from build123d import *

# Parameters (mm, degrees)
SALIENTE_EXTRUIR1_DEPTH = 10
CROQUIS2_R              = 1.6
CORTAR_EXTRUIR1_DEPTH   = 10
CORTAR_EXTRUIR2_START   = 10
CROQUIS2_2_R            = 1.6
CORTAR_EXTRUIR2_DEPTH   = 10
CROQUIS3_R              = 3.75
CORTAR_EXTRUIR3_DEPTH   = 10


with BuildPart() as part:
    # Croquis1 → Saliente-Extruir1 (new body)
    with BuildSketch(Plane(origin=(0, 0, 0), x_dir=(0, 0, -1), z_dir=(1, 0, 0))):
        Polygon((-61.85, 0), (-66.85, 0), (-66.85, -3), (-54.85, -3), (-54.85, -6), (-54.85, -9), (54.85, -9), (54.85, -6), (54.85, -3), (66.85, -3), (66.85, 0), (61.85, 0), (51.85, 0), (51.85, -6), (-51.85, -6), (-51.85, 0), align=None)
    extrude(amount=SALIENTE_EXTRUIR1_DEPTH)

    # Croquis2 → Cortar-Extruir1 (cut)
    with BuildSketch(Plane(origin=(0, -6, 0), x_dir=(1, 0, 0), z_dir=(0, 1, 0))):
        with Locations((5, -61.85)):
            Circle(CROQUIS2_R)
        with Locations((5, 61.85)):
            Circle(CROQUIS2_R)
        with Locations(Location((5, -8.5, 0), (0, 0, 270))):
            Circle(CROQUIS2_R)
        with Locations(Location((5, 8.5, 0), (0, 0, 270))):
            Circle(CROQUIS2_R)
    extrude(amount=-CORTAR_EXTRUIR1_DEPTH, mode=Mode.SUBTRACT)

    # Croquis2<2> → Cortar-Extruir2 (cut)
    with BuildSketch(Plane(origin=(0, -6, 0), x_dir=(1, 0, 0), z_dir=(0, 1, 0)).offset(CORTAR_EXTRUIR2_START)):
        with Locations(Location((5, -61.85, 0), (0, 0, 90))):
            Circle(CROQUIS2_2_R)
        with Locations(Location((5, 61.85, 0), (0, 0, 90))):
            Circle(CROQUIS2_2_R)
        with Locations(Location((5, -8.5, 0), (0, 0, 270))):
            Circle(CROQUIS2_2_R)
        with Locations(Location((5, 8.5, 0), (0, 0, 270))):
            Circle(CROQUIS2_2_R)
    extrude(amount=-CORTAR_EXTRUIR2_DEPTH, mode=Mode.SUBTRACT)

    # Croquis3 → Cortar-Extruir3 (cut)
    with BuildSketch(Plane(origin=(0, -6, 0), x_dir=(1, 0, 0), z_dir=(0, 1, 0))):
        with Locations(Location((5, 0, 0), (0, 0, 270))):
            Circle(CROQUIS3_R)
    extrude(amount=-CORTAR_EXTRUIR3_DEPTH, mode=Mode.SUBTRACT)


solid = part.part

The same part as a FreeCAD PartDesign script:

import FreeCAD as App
import Part
import Sketcher
from FreeCAD import Vector
Q = App.Units.Quantity


def add_polygon(sketch, points):
    """Adds a closed chain of lines whose ends are joined by coincident constraints."""
    first, n = sketch.GeometryCount, len(points)
    for a, b in zip(points, points[1:] + points[:1]):
        sketch.addGeometry(Part.LineSegment(App.Vector(*a, 0), App.Vector(*b, 0)), False)
    for i in range(n):
        sketch.addConstraint(Sketcher.Constraint("Coincident", first + i, 2, first + (i + 1) % n, 1))

doc = App.newDocument("Part")
body = doc.addObject("PartDesign::Body", "Body")

# Sketch on YZ plane
sketch1 = body.newObject("Sketcher::SketchObject", "Sketch")
sketch1.AttachmentSupport = (doc.getObject("YZ_Plane"), [""])
sketch1.MapMode = "FlatFace"
add_polygon(sketch1, [(0, 66.8), (-3, 66.8), (-3, 54.9), (-9, 54.9), (-9, -54.9), (-3, -54.9), (-3, -66.8), (0, -66.8), (0, -51.9), (-6, -51.9), (-6, 51.9), (0, 51.9)])  # lines 0-11
sketch1.addConstraint([
    Sketcher.Constraint("Horizontal", 0),
    Sketcher.Constraint("Vertical", 1),
    Sketcher.Constraint("Horizontal", 2),
    Sketcher.Constraint("Vertical", 3),
    Sketcher.Constraint("Horizontal", 4),
    Sketcher.Constraint("Vertical", 5),
    Sketcher.Constraint("Horizontal", 6),
    Sketcher.Constraint("Vertical", 7),
    Sketcher.Constraint("Horizontal", 8),
    Sketcher.Constraint("Vertical", 9),
    Sketcher.Constraint("Horizontal", 10),
    Sketcher.Constraint("Vertical", 11),
    Sketcher.Constraint("Symmetric", 7, 2, 10, 2, -1, 1),
    Sketcher.Constraint("Symmetric", 1, 2, 4, 2, -1),
    Sketcher.Constraint("Symmetric", 6, 2, 11, 2, -1),
    Sketcher.Constraint("Equal", 4, 8),
    Sketcher.Constraint("DistanceX", 0, 2, 0, 1, Q("3 mm")),
    Sketcher.Constraint("DistanceX", 2, 2, 2, 1, Q("6 mm")),
    Sketcher.Constraint("DistanceY", 1, 2, 1, 1, Q("12 mm")),
    Sketcher.Constraint("DistanceY", 7, 1, 7, 2, Q("15 mm")),
    Sketcher.Constraint("DistanceY", 3, 2, 3, 1, Q("109.7 mm")),
])
pad1 = body.newObject("PartDesign::Pad", "Pad")
pad1.Profile = sketch1
pad1.Length = 10

# Sketch on XZ plane
sketch2 = body.newObject("Sketcher::SketchObject", "Sketch001")
sketch2.AttachmentSupport = (doc.getObject("XZ_Plane"), [""])
sketch2.MapMode = "FlatFace"
sketch2.AttachmentOffset = App.Placement(Vector(0, 0, 6), App.Rotation())
sketch2.addGeometry([
    Part.Circle(Vector(5, 61.9, 0), Vector(0, 0, 1), 1.6),
    Part.Circle(Vector(5, -61.9, 0), Vector(0, 0, 1), 1.6),
    Part.Circle(Vector(5, 8.5, 0), Vector(0, 0, 1), 1.6),
    Part.Circle(Vector(5, -8.5, 0), Vector(0, 0, 1), 1.6),
], False)
sketch2.addConstraint([
    Sketcher.Constraint("Equal", 0, 1),
    Sketcher.Constraint("Equal", 1, 2),
    Sketcher.Constraint("Equal", 2, 3),
    Sketcher.Constraint("Symmetric", 0, 3, 1, 3, -1),
    Sketcher.Constraint("Symmetric", 2, 3, 3, 3, -1),
    Sketcher.Constraint("Vertical", 1, 3, 2, 3),
    Sketcher.Constraint("Diameter", 0, Q("3.2 mm")),
    Sketcher.Constraint("DistanceX", -1, 1, 0, 3, Q("5 mm")),
    Sketcher.Constraint("DistanceY", 3, 3, 2, 3, Q("17 mm")),
    Sketcher.Constraint("DistanceY", 1, 3, 0, 3, Q("123.7 mm")),
])
pocket1 = body.newObject("PartDesign::Pocket", "Pocket")
pocket1.Profile = sketch2
pocket1.Length = 10
pocket1.Reversed = True

# Sketch on XZ plane
sketch3 = body.newObject("Sketcher::SketchObject", "Sketch002")
sketch3.AttachmentSupport = (doc.getObject("XZ_Plane"), [""])
sketch3.MapMode = "FlatFace"
sketch3.AttachmentOffset = App.Placement(Vector(0, 0, -4), App.Rotation())
sketch3.addGeometry([
    Part.Circle(Vector(5, 61.9, 0), Vector(0, 0, 1), 1.6),
    Part.Circle(Vector(5, -61.9, 0), Vector(0, 0, 1), 1.6),
    Part.Circle(Vector(5, 8.5, 0), Vector(0, 0, 1), 1.6),
    Part.Circle(Vector(5, -8.5, 0), Vector(0, 0, 1), 1.6),
], False)
sketch3.addConstraint([
    Sketcher.Constraint("Equal", 0, 1),
    Sketcher.Constraint("Equal", 1, 2),
    Sketcher.Constraint("Equal", 2, 3),
    Sketcher.Constraint("Symmetric", 0, 3, 1, 3, -1),
    Sketcher.Constraint("Symmetric", 2, 3, 3, 3, -1),
    Sketcher.Constraint("Vertical", 1, 3, 2, 3),
    Sketcher.Constraint("Diameter", 0, Q("3.2 mm")),
    Sketcher.Constraint("DistanceX", -1, 1, 0, 3, Q("5 mm")),
    Sketcher.Constraint("DistanceY", 3, 3, 2, 3, Q("17 mm")),
    Sketcher.Constraint("DistanceY", 1, 3, 0, 3, Q("123.7 mm")),
])
pocket2 = body.newObject("PartDesign::Pocket", "Pocket001")
pocket2.Profile = sketch3
pocket2.Length = 10
pocket2.Reversed = True

# Sketch on XZ plane
sketch4 = body.newObject("Sketcher::SketchObject", "Sketch003")
sketch4.AttachmentSupport = (doc.getObject("XZ_Plane"), [""])
sketch4.MapMode = "FlatFace"
sketch4.AttachmentOffset = App.Placement(Vector(0, 0, 6), App.Rotation())
sketch4.addGeometry(Part.Circle(Vector(5, 0, 0), Vector(0, 0, 1), 3.8), False)
sketch4.addConstraint([
    Sketcher.Constraint("PointOnObject", 0, 3, -1),
    Sketcher.Constraint("Diameter", 0, Q("7.5 mm")),
    Sketcher.Constraint("DistanceX", -1, 1, 0, 3, Q("5 mm")),
])
pocket3 = body.newObject("PartDesign::Pocket", "Pocket002")
pocket3.Profile = sketch4
pocket3.Length = 10
pocket3.Reversed = True

doc.recompute()
